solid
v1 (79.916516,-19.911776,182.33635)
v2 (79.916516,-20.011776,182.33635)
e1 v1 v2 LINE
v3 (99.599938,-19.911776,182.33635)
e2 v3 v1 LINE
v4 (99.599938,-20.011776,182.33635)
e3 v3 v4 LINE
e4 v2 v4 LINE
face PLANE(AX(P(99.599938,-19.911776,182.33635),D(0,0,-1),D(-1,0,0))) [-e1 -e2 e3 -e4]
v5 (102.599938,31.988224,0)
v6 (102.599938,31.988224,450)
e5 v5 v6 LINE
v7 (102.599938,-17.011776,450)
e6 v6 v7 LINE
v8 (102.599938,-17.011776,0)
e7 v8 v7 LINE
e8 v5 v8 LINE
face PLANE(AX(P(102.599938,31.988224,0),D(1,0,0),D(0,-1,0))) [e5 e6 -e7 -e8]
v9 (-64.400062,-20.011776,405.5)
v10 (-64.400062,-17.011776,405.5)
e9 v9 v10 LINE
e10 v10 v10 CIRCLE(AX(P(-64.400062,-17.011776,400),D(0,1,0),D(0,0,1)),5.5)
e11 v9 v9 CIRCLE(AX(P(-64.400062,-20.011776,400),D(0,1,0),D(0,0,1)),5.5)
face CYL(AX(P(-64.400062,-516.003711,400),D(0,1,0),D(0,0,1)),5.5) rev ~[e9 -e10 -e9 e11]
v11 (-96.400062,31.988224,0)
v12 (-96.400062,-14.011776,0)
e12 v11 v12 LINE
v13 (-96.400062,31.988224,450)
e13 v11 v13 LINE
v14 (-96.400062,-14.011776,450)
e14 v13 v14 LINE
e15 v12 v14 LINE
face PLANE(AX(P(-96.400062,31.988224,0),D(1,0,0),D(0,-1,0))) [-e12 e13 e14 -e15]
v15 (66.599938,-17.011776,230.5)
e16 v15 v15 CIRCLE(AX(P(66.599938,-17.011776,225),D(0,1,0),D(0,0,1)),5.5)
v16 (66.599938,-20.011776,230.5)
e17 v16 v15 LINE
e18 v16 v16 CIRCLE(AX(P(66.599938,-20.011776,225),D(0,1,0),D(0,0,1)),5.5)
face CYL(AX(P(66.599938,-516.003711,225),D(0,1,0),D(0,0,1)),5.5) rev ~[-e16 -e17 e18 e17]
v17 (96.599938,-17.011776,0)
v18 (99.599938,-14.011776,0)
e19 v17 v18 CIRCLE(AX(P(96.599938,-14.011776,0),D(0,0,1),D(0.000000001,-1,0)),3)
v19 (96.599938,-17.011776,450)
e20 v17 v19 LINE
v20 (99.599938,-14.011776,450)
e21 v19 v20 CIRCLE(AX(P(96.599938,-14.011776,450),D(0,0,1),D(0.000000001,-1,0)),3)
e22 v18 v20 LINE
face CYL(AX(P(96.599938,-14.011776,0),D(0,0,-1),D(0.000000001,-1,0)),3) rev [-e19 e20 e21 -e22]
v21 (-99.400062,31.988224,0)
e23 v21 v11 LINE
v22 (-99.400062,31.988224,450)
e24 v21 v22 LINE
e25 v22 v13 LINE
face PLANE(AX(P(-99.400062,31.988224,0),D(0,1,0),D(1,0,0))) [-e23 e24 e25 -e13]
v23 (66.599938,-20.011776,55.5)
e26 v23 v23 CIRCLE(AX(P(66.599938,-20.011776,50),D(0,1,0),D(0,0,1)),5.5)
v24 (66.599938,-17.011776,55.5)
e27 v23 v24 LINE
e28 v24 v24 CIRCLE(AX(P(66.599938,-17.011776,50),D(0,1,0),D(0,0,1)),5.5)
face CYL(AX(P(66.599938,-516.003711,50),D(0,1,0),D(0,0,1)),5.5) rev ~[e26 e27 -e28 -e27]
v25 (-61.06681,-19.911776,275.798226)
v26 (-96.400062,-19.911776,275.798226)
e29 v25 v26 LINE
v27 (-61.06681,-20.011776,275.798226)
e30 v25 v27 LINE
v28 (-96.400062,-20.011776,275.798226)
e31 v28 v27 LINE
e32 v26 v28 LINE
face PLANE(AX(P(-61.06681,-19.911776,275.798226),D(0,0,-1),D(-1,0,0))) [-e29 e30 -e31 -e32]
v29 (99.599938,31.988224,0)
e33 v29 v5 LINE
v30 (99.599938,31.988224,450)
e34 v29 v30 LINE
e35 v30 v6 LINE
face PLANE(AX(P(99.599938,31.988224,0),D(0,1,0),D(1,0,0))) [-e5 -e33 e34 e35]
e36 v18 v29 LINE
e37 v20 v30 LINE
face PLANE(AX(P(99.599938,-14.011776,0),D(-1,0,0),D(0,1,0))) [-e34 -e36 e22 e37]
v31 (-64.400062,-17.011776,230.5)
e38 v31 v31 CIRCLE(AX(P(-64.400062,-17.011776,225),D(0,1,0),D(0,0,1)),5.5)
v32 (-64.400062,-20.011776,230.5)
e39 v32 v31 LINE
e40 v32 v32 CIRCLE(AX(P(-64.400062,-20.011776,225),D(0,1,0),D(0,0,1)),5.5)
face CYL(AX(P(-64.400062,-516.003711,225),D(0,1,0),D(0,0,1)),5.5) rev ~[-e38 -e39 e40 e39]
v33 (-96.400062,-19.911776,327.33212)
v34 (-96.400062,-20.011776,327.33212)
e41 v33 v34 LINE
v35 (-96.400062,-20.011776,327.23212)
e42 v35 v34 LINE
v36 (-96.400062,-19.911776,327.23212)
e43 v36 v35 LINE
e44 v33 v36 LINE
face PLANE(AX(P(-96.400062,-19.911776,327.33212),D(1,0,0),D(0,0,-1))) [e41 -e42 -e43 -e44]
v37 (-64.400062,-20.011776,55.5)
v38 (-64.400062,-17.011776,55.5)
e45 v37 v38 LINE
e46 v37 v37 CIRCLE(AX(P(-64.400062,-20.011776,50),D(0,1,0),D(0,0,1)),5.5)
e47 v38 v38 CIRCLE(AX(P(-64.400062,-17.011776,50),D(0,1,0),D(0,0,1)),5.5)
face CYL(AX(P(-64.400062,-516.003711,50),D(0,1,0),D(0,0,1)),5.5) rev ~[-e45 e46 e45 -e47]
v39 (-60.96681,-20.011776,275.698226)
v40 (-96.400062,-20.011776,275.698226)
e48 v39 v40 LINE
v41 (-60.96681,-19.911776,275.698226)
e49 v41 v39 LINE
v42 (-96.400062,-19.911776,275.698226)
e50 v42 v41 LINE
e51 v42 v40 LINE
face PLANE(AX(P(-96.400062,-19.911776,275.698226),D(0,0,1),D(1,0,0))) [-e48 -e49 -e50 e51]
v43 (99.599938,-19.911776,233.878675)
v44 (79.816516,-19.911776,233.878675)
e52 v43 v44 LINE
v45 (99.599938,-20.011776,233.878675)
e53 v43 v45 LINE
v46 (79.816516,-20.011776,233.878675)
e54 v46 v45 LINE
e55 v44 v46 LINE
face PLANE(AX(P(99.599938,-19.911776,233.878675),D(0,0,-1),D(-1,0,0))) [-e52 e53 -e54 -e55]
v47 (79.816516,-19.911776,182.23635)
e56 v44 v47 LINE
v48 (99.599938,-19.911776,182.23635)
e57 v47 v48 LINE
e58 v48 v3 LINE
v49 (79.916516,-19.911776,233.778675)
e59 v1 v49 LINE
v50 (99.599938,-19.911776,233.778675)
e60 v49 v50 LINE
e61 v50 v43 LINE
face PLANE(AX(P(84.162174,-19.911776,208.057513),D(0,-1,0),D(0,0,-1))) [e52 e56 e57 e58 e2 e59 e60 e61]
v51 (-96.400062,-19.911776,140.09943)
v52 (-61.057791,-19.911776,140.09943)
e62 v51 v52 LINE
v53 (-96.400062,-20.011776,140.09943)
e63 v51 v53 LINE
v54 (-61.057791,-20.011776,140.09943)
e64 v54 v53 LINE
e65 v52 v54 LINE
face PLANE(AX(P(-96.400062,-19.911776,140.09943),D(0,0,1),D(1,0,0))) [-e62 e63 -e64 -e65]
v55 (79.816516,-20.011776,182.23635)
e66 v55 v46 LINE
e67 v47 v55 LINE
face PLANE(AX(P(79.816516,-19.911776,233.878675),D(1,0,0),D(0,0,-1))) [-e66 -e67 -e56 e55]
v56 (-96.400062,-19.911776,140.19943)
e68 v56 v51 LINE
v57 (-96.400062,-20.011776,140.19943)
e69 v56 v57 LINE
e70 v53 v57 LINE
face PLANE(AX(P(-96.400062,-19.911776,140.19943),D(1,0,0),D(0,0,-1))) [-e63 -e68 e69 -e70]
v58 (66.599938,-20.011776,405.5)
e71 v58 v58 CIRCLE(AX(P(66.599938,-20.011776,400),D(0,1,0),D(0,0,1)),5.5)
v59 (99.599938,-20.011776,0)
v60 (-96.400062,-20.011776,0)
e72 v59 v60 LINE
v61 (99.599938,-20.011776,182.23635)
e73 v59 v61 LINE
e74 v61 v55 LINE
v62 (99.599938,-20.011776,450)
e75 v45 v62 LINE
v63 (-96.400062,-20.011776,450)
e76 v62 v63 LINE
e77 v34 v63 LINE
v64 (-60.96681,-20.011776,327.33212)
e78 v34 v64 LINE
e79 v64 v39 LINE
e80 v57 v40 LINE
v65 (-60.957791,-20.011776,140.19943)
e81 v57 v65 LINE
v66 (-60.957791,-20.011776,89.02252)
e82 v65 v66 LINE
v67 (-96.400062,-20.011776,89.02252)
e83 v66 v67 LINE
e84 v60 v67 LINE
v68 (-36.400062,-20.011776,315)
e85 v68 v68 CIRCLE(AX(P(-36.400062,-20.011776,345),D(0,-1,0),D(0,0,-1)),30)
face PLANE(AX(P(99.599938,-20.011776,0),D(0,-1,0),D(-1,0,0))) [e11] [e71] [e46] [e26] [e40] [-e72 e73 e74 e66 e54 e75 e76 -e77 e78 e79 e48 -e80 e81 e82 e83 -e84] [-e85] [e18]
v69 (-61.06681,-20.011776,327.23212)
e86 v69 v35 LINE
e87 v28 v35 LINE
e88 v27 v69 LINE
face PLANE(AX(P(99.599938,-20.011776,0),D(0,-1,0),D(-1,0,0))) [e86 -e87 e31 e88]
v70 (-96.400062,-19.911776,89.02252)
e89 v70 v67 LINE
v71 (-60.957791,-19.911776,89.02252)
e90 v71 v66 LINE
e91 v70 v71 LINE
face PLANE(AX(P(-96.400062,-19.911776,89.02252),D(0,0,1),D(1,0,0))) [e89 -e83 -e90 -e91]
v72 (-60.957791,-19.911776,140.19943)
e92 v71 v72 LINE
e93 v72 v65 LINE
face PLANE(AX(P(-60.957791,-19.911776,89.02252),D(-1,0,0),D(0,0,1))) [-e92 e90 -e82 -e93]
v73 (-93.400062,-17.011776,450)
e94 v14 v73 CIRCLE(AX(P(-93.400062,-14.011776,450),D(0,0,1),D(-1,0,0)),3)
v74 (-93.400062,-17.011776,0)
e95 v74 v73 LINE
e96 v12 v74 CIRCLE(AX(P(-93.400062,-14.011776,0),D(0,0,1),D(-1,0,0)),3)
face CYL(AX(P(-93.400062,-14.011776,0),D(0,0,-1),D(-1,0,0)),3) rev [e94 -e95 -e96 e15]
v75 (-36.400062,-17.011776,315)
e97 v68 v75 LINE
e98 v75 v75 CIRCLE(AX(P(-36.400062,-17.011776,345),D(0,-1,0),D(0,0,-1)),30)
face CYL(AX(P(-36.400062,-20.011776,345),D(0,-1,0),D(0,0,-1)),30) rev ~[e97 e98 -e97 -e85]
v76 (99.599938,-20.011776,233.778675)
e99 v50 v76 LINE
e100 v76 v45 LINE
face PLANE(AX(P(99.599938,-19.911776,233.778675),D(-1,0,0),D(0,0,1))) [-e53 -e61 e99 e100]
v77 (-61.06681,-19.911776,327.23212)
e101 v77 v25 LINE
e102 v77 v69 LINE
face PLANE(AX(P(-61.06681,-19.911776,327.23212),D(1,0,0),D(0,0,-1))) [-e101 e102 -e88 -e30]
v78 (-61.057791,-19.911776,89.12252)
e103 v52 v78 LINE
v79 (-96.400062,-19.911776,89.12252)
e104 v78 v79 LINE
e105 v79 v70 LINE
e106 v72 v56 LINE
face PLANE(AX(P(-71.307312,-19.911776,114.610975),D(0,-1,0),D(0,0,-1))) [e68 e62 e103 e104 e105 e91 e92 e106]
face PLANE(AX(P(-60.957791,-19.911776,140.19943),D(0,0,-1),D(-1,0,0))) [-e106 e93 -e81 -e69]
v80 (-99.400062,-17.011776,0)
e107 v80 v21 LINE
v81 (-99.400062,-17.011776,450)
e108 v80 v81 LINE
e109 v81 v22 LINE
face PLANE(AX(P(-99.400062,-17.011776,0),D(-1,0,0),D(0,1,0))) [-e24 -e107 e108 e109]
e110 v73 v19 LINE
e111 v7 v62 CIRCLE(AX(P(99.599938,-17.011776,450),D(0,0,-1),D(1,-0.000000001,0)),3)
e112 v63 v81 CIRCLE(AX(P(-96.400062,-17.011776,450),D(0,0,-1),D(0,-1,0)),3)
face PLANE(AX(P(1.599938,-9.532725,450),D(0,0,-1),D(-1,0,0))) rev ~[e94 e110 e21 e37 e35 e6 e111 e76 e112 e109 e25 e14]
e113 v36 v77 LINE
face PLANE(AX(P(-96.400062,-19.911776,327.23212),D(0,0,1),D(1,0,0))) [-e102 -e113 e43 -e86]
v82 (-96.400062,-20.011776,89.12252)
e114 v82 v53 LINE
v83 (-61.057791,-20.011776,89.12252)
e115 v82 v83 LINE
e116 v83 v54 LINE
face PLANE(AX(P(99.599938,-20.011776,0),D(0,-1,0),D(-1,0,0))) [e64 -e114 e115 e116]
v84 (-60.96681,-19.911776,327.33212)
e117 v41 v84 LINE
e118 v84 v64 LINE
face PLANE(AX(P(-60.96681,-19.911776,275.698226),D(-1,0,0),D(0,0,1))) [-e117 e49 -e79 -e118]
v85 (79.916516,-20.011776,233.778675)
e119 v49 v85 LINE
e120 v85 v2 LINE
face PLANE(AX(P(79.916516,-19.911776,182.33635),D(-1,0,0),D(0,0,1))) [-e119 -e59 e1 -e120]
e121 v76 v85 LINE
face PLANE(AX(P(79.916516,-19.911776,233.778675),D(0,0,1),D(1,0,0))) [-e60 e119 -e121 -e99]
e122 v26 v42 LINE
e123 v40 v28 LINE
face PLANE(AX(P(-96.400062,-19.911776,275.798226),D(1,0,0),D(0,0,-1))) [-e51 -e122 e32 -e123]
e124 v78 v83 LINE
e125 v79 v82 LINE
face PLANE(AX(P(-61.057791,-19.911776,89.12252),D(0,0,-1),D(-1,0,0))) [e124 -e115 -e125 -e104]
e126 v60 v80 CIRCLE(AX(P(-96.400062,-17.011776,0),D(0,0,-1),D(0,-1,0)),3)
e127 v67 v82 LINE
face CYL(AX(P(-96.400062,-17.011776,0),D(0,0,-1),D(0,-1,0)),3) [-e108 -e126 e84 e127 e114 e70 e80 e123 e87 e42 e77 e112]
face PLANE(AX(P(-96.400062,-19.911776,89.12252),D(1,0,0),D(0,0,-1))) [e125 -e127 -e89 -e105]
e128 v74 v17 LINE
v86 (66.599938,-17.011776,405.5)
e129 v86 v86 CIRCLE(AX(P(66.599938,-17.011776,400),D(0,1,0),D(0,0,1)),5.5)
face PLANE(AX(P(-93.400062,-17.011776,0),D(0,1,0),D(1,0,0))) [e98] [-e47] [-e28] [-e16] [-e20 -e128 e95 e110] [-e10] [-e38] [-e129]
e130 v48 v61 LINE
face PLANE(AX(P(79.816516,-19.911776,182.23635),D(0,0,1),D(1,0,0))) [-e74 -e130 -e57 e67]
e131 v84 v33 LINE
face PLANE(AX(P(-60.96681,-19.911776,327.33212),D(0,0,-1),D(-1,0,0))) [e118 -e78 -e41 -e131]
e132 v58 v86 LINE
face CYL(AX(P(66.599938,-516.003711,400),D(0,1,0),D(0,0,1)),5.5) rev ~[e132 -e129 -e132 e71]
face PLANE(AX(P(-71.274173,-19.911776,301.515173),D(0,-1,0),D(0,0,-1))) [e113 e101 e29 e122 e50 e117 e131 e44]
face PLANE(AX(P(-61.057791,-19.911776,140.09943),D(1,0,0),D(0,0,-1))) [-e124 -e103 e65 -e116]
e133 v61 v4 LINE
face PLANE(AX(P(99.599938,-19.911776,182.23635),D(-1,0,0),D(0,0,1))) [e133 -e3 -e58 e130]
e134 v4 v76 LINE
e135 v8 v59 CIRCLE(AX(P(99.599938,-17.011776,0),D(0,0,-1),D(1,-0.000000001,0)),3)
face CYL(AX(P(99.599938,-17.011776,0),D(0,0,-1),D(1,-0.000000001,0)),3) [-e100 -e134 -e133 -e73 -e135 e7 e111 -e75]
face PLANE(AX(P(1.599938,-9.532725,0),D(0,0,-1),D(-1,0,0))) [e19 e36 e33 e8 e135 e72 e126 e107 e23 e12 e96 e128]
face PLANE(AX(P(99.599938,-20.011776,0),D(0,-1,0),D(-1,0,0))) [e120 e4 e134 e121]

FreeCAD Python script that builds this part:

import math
import FreeCAD as App
import Part
import Sketcher
Q = App.Units.Quantity


def add_polygon(sketch, points):
    """Adds a closed chain of lines whose ends are joined by coincident constraints."""
    first, n = sketch.GeometryCount, len(points)
    for a, b in zip(points, points[1:] + points[:1]):
        sketch.addGeometry(Part.LineSegment(App.Vector(*a, 0), App.Vector(*b, 0)), False)
    for i in range(n):
        sketch.addConstraint(Sketcher.Constraint("Coincident", first + i, 2, first + (i + 1) % n, 1))

doc = App.newDocument("Part")
body = doc.addObject("PartDesign::Body", "Body")

# Sketch on XY plane
sketch1 = doc.addObject("Sketcher::SketchObject", "Sketch")
body.addObject(sketch1)
sketch1.AttachmentSupport = (doc.XY_Plane, [""])
sketch1.MapMode = "FlatFace"
sketch1.addGeometry([
    Part.LineSegment(App.Vector(-96.400062, -14.011776, 0), App.Vector(-96.400062, 31.988224, 0)),  # 0
    Part.LineSegment(App.Vector(-96.400062, 31.988224, 0), App.Vector(-99.400062, 31.988224, 0)),  # 1
    Part.LineSegment(App.Vector(-99.400062, 31.988224, 0), App.Vector(-99.400062, -17.011776, 0)),  # 2
    Part.ArcOfCircle(Part.Circle(App.Vector(-96.400062, -17.011776, 0), App.Vector(0, 0, 1), 3), math.radians(180), math.radians(270)),  # 3
    Part.LineSegment(App.Vector(-96.400062, -20.011776, 0), App.Vector(99.599938, -20.011776, 0)),  # 4
    Part.ArcOfCircle(Part.Circle(App.Vector(99.599938, -17.011776, 0), App.Vector(0, 0, 1), 3), math.radians(-90), math.radians(0)),  # 5
    Part.LineSegment(App.Vector(102.599938, -17.011776, 0), App.Vector(102.599938, 31.988224, 0)),  # 6
    Part.LineSegment(App.Vector(102.599938, 31.988224, 0), App.Vector(99.599938, 31.988224, 0)),  # 7
    Part.LineSegment(App.Vector(99.599938, 31.988224, 0), App.Vector(99.599938, -14.011776, 0)),  # 8
    Part.ArcOfCircle(Part.Circle(App.Vector(96.599938, -14.011776, 0), App.Vector(0, 0, 1), 3), math.radians(-90), math.radians(0)),  # 9
    Part.LineSegment(App.Vector(96.599938, -17.011776, 0), App.Vector(-93.400062, -17.011776, 0)),  # 10
    Part.ArcOfCircle(Part.Circle(App.Vector(-93.400062, -14.011776, 0), App.Vector(0, 0, 1), 3), math.radians(180), math.radians(270)),  # 11
], False)
sketch1.addConstraint([
    Sketcher.Constraint("Coincident", 0, 2, 1, 1),
    Sketcher.Constraint("Coincident", 1, 2, 2, 1),
    Sketcher.Constraint("Tangent", 2, 2, 3, 1),
    Sketcher.Constraint("Tangent", 3, 2, 4, 1),
    Sketcher.Constraint("Tangent", 4, 2, 5, 1),
    Sketcher.Constraint("Tangent", 5, 2, 6, 1),
    Sketcher.Constraint("Coincident", 6, 2, 7, 1),
    Sketcher.Constraint("Coincident", 7, 2, 8, 1),
    Sketcher.Constraint("Tangent", 8, 2, 9, 2),
    Sketcher.Constraint("Tangent", 9, 1, 10, 1),
    Sketcher.Constraint("Tangent", 10, 2, 11, 2),
    Sketcher.Constraint("Tangent", 11, 1, 0, 1),
    Sketcher.Constraint("Vertical", 0),
    Sketcher.Constraint("Horizontal", 1),
    Sketcher.Constraint("Vertical", 2),
    Sketcher.Constraint("Horizontal", 4),
    Sketcher.Constraint("Vertical", 6),
    Sketcher.Constraint("Horizontal", 7),
    Sketcher.Constraint("Vertical", 8),
    Sketcher.Constraint("Horizontal", 10),
    Sketcher.Constraint("Equal", 3, 5),
    Sketcher.Constraint("Equal", 5, 9),
    Sketcher.Constraint("Equal", 9, 11),
    Sketcher.Constraint("Horizontal", 1, 2, 6, 2),
    Sketcher.Constraint("Horizontal", 5, 2, 9, 1),
    Sketcher.Constraint("Vertical", 3, 3, 0, 2),
    Sketcher.Constraint("Vertical", 4, 2, 7, 2),
    Sketcher.Constraint("Radius", 3, Q("3 mm")),
    Sketcher.Constraint("DistanceX", 4, 1, 4, 2, Q("196 mm")),
    Sketcher.Constraint("DistanceY", 0, 1, 0, 2, Q("46 mm")),
    Sketcher.Constraint("DistanceX", 3, 3, -1, 1, Q("96.400062 mm")),
    Sketcher.Constraint("DistanceY", 3, 3, -1, 1, Q("17.011776 mm")),
])
pad1 = doc.addObject("PartDesign::Pad", "Pad")
body.addObject(pad1)
pad1.Profile = sketch1
pad1.Length = 450

# Sketch on XZ plane
sketch2 = doc.addObject("Sketcher::SketchObject", "Sketch001")
body.addObject(sketch2)
sketch2.AttachmentSupport = (doc.XZ_Plane, [""])
sketch2.MapMode = "FlatFace"
sketch2.AttachmentOffset = App.Placement(App.Vector(0, 0, 20.011776), App.Rotation())
sketch2.addGeometry(Part.Circle(App.Vector(-36.400062, 345, 0), App.Vector(0, 0, 1), 30), False)
sketch2.addConstraint([
    Sketcher.Constraint("Diameter", 0, Q("60 mm")),
    Sketcher.Constraint("DistanceY", -1, 1, 0, 3, Q("345 mm")),
    Sketcher.Constraint("DistanceX", 0, 3, -1, 1, Q("36.400062 mm")),
])
pocket1 = doc.addObject("PartDesign::Pocket", "Pocket")
body.addObject(pocket1)
pocket1.Profile = sketch2
pocket1.Type = "ThroughAll"

# Sketch on XZ plane
sketch3 = doc.addObject("Sketcher::SketchObject", "Sketch002")
body.addObject(sketch3)
sketch3.AttachmentSupport = (doc.XZ_Plane, [""])
sketch3.MapMode = "FlatFace"
sketch3.AttachmentOffset = App.Placement(App.Vector(0, 0, 20.011776), App.Rotation())
sketch3.addGeometry([
    Part.Circle(App.Vector(66.599938, 400, 0), App.Vector(0, 0, 1), 5.5),  # 0
    Part.Circle(App.Vector(66.599938, 225, 0), App.Vector(0, 0, 1), 5.5),  # 1
    Part.Circle(App.Vector(66.599938, 50, 0), App.Vector(0, 0, 1), 5.5),  # 2
    Part.Circle(App.Vector(-64.400062, 50, 0), App.Vector(0, 0, 1), 5.5),  # 3
    Part.Circle(App.Vector(-64.400062, 225, 0), App.Vector(0, 0, 1), 5.5),  # 4
    Part.Circle(App.Vector(-64.400062, 400, 0), App.Vector(0, 0, 1), 5.5),  # 5
], False)
sketch3.addConstraint([
    Sketcher.Constraint("Equal", 0, 1),
    Sketcher.Constraint("Equal", 1, 2),
    Sketcher.Constraint("Equal", 2, 3),
    Sketcher.Constraint("Equal", 3, 4),
    Sketcher.Constraint("Equal", 4, 5),
    Sketcher.Constraint("Horizontal", 2, 3, 3, 3),
    Sketcher.Constraint("Horizontal", 1, 3, 4, 3),
    Sketcher.Constraint("Horizontal", 0, 3, 5, 3),
    Sketcher.Constraint("Vertical", 0, 3, 1, 3),
    Sketcher.Constraint("Vertical", 1, 3, 2, 3),
    Sketcher.Constraint("Vertical", 3, 3, 4, 3),
    Sketcher.Constraint("Vertical", 4, 3, 5, 3),
    Sketcher.Constraint("Diameter", 0, Q("11 mm")),
    Sketcher.Constraint("DistanceY", -1, 1, 0, 3, Q("400 mm")),
    Sketcher.Constraint("DistanceY", -1, 1, 1, 3, Q("225 mm")),
    Sketcher.Constraint("DistanceY", -1, 1, 2, 3, Q("50 mm")),
    Sketcher.Constraint("DistanceX", 3, 3, 2, 3, Q("131 mm")),
    Sketcher.Constraint("DistanceX", -1, 1, 0, 3, Q("66.599938 mm")),
])
doc.recompute()
hole = doc.addObject("PartDesign::Hole", "Hole")
body.addObject(hole)
hole.Profile = sketch3
hole.ThreadType = "None"
hole.Diameter = 11
hole.DepthType = "ThroughAll"

# Sketch on XZ plane
sketch4 = doc.addObject("Sketcher::SketchObject", "Sketch003")
body.addObject(sketch4)
sketch4.AttachmentSupport = (doc.XZ_Plane, [""])
sketch4.MapMode = "FlatFace"
sketch4.AttachmentOffset = App.Placement(App.Vector(0, 0, 20.011776), App.Rotation())
add_polygon(sketch4, [(-96.400062, 327.23212), (-61.06681, 327.23212), (-61.06681, 275.798226), (-96.400062, 275.798226), (-96.400062, 275.698226), (-60.96681, 275.698226), (-60.96681, 327.33212), (-96.400062, 327.33212)])  # lines 0-7
sketch4.addConstraint([
    Sketcher.Constraint("Horizontal", 0),
    Sketcher.Constraint("Vertical", 1),
    Sketcher.Constraint("Horizontal", 2),
    Sketcher.Constraint("Vertical", 3),
    Sketcher.Constraint("Horizontal", 4),
    Sketcher.Constraint("Vertical", 5),
    Sketcher.Constraint("Horizontal", 6),
    Sketcher.Constraint("Vertical", 7),
    Sketcher.Constraint("Vertical", 3, 2, 6, 2),
    Sketcher.Constraint("Equal", 3, 7),
    Sketcher.Constraint("DistanceY", 3, 2, 3, 1, Q("0.1 mm")),
    Sketcher.Constraint("DistanceX", 1, 2, 4, 2, Q("0.1 mm")),
    Sketcher.Constraint("DistanceX", 0, 1, 0, 2, Q("35.333252 mm")),
    Sketcher.Constraint("DistanceY", 1, 2, 1, 1, Q("51.433894 mm")),
    Sketcher.Constraint("DistanceX", 0, 2, -1, 1, Q("61.06681 mm")),
    Sketcher.Constraint("DistanceY", -1, 1, 0, 2, Q("327.23212 mm")),
])
pocket2 = doc.addObject("PartDesign::Pocket", "Pocket001")
body.addObject(pocket2)
pocket2.Profile = sketch4
pocket2.Type = "TwoLengths"
pocket2.Length = 609.050936
pocket2.Length2 = 0.1
pocket2.Reversed = True

# Sketch on XZ plane
sketch5 = doc.addObject("Sketcher::SketchObject", "Sketch004")
body.addObject(sketch5)
sketch5.AttachmentSupport = (doc.XZ_Plane, [""])
sketch5.MapMode = "FlatFace"
sketch5.AttachmentOffset = App.Placement(App.Vector(0, 0, 20.011776), App.Rotation())
add_polygon(sketch5, [(-96.400062, 89.02252), (-60.957791, 89.02252), (-60.957791, 140.19943), (-96.400062, 140.19943), (-96.400062, 140.09943), (-61.057791, 140.09943), (-61.057791, 89.12252), (-96.400062, 89.12252)])  # lines 0-7
sketch5.addConstraint([
    Sketcher.Constraint("Horizontal", 0),
    Sketcher.Constraint("Vertical", 1),
    Sketcher.Constraint("Horizontal", 2),
    Sketcher.Constraint("Vertical", 3),
    Sketcher.Constraint("Horizontal", 4),
    Sketcher.Constraint("Vertical", 5),
    Sketcher.Constraint("Horizontal", 6),
    Sketcher.Constraint("Vertical", 7),
    Sketcher.Constraint("Vertical", 3, 2, 6, 2),
    Sketcher.Constraint("Equal", 3, 7),
    Sketcher.Constraint("DistanceY", 3, 2, 3, 1, Q("0.1 mm")),
    Sketcher.Constraint("DistanceX", 4, 2, 1, 2, Q("0.1 mm")),
    Sketcher.Constraint("DistanceX", 0, 1, 0, 2, Q("35.442271 mm")),
    Sketcher.Constraint("DistanceY", 1, 1, 1, 2, Q("51.176911 mm")),
    Sketcher.Constraint("DistanceX", 0, 2, -1, 1, Q("60.957791 mm")),
    Sketcher.Constraint("DistanceY", -1, 1, 0, 2, Q("89.02252 mm")),
])
pocket3 = doc.addObject("PartDesign::Pocket", "Pocket002")
body.addObject(pocket3)
pocket3.Profile = sketch5
pocket3.Type = "TwoLengths"
pocket3.Length = 609.050936
pocket3.Length2 = 0.1
pocket3.Reversed = True

# Sketch on XZ plane
sketch6 = doc.addObject("Sketcher::SketchObject", "Sketch005")
body.addObject(sketch6)
sketch6.AttachmentSupport = (doc.XZ_Plane, [""])
sketch6.MapMode = "FlatFace"
sketch6.AttachmentOffset = App.Placement(App.Vector(0, 0, 20.011776), App.Rotation())
add_polygon(sketch6, [(99.599938, 182.33635), (79.916516, 182.33635), (79.916516, 233.778675), (99.599938, 233.778675), (99.599938, 233.878675), (79.816516, 233.878675), (79.816516, 182.23635), (99.599938, 182.23635)])  # lines 0-7
sketch6.addConstraint([
    Sketcher.Constraint("Horizontal", 0),
    Sketcher.Constraint("Vertical", 1),
    Sketcher.Constraint("Horizontal", 2),
    Sketcher.Constraint("Vertical", 3),
    Sketcher.Constraint("Horizontal", 4),
    Sketcher.Constraint("Vertical", 5),
    Sketcher.Constraint("Horizontal", 6),
    Sketcher.Constraint("Vertical", 7),
    Sketcher.Constraint("Vertical", 3, 2, 6, 2),
    Sketcher.Constraint("Equal", 3, 7),
    Sketcher.Constraint("DistanceY", 3, 1, 3, 2, Q("0.1 mm")),
    Sketcher.Constraint("DistanceX", 4, 2, 1, 2, Q("0.1 mm")),
    Sketcher.Constraint("DistanceX", 0, 2, 0, 1, Q("19.683422 mm")),
    Sketcher.Constraint("DistanceY", 1, 1, 1, 2, Q("51.442325 mm")),
    Sketcher.Constraint("DistanceY", -1, 1, 0, 2, Q("182.33635 mm")),
    Sketcher.Constraint("DistanceX", -1, 1, 0, 2, Q("79.916516 mm")),
])
pocket4 = doc.addObject("PartDesign::Pocket", "Pocket003")
body.addObject(pocket4)
pocket4.Profile = sketch6
pocket4.Type = "TwoLengths"
pocket4.Length = 609.050936
pocket4.Length2 = 0.1
pocket4.Reversed = True

doc.recompute()
